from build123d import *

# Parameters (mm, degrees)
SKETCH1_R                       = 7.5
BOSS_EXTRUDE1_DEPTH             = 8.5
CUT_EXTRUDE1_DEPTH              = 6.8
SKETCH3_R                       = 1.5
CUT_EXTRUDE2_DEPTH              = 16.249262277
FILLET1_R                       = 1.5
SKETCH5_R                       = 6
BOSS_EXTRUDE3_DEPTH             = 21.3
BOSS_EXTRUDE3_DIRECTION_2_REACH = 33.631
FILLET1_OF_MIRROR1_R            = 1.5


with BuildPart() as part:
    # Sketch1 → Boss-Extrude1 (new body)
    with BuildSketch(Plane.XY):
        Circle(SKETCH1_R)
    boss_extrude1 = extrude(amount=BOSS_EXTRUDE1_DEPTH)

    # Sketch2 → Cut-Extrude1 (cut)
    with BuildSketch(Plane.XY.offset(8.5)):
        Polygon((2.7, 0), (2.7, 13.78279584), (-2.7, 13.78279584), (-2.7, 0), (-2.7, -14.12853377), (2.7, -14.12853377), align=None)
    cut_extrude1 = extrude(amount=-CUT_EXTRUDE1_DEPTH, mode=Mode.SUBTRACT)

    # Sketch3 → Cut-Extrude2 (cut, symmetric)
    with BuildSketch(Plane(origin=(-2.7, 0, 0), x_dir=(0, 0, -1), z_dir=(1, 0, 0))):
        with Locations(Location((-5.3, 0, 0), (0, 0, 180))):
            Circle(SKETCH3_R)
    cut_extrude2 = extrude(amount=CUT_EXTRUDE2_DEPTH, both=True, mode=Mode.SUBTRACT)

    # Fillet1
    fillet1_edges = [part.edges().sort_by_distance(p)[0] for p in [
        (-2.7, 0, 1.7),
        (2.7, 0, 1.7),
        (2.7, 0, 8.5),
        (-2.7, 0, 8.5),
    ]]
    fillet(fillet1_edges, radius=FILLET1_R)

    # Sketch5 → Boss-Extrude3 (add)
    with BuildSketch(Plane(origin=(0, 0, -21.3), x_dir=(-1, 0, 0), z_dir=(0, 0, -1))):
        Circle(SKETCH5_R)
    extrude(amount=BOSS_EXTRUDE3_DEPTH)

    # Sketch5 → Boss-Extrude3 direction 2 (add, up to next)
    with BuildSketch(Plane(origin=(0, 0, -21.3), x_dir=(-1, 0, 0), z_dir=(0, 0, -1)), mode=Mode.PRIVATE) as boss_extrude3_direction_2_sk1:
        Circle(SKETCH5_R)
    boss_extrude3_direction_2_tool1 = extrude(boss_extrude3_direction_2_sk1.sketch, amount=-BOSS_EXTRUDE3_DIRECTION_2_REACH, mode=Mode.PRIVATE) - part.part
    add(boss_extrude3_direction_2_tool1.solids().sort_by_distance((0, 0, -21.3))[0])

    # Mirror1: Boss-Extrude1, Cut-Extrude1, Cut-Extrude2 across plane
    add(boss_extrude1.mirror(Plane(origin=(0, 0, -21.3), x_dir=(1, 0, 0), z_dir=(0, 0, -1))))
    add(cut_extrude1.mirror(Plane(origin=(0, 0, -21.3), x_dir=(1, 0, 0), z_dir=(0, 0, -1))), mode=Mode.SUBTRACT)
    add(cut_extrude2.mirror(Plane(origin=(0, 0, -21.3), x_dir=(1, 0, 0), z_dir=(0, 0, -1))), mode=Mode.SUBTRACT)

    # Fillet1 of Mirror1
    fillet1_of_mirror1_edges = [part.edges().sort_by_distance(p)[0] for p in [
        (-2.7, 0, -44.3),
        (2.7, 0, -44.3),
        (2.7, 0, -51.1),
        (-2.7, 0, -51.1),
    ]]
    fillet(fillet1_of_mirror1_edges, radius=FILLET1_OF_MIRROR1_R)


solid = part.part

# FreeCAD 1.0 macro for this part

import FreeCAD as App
import Part
import Sketcher

V = App.Vector


def edges_at(feature, points):
    """Names of the edges that pass closest to the given points."""
    edges = feature.Shape.Edges
    near = lambda p: min(range(len(edges)), key=lambda i: edges[i].distToShape(Part.Vertex(*p))[0])
    return sorted({f"Edge{near(p) + 1}" for p in points})

doc = App.newDocument("Part")
params = doc.addObject("Spreadsheet::Sheet", "Params")
for row, (alias, value) in enumerate([
    ("sketch1_diameter", "15 mm"),
    ("pad1_length", "8.5 mm"),
    ("sketch2_width", "5.4 mm"),
    ("pocket1_length", "6.8 mm"),
    ("sketch3_diameter", "3 mm"),
    ("pocket2_length", "32.498525 mm"),
    ("fillet_radius", "1.5 mm"),
    ("sketch4_diameter", "12 mm"),
    ("pad2_length", "21.3 mm"),
    ("sketch5_diameter", "12 mm"),
    ("fillet2_radius", "1.5 mm"),
], start=1):
    params.set(f"A{row}", alias)
    params.set(f"B{row}", "=" + value)
    params.setAlias(f"B{row}", alias)

body = doc.addObject("PartDesign::Body", "Body")
body.AllowCompound = True

# Sketch on XY plane
sketch1 = body.newObject("Sketcher::SketchObject", "Sketch")
sketch1.AttachmentSupport = (doc.getObject("XY_Plane"), [""])
sketch1.MapMode = "FlatFace"
sketch1.addGeometry(Part.Circle(V(0, 0, 0), V(0, 0, 1), 8), False)
sketch1.addConstraint([
    Sketcher.Constraint("Coincident", 0, 3, -1, 1),
    Sketcher.Constraint("Diameter", 0, 15.0),
])
sketch1.setExpression("Constraints[1]", "Params.sketch1_diameter")
pad1 = body.newObject("PartDesign::Pad", "Pad")
pad1.Profile = sketch1
pad1.setExpression("Length", "Params.pad1_length")

# Sketch on XY plane
sketch2 = body.newObject("Sketcher::SketchObject", "Sketch001")
sketch2.AttachmentSupport = (doc.getObject("XY_Plane"), [""])
sketch2.MapMode = "FlatFace"
sketch2.AttachmentOffset = App.Placement(V(0, 0, 8.5), App.Rotation())
sketch2.addGeometry([
    Part.LineSegment(V(3, 14, 0), V(-3, 14, 0)),
    Part.LineSegment(V(-3, 14, 0), V(-3, -14, 0)),
    Part.LineSegment(V(-3, -14, 0), V(3, -14, 0)),
    Part.LineSegment(V(3, -14, 0), V(3, 14, 0)),
], False)
sketch2.addConstraint([
    Sketcher.Constraint("Coincident", 0, 2, 1, 1),
    Sketcher.Constraint("Coincident", 1, 2, 2, 1),
    Sketcher.Constraint("Coincident", 2, 2, 3, 1),
    Sketcher.Constraint("Coincident", 3, 2, 0, 1),
    Sketcher.Constraint("Horizontal", 0),
    Sketcher.Constraint("Vertical", 1),
    Sketcher.Constraint("Horizontal", 2),
    Sketcher.Constraint("Vertical", 3),
    Sketcher.Constraint("DistanceX", 0, 2, 0, 1, 5.4),
    Sketcher.Constraint("DistanceX", 0, 2, -1, 1, 2.7),
    Sketcher.Constraint("DistanceY", 1, 2, 1, 1, 27.91133),
    Sketcher.Constraint("DistanceY", -1, 1, 0, 2, 13.782796),
])
sketch2.setExpression("Constraints[8]", "Params.sketch2_width")
pocket1 = body.newObject("PartDesign::Pocket", "Pocket")
pocket1.Profile = sketch2
pocket1.setExpression("Length", "Params.pocket1_length")

# Sketch on YZ plane
sketch3 = body.newObject("Sketcher::SketchObject", "Sketch002")
sketch3.AttachmentSupport = (doc.getObject("YZ_Plane"), [""])
sketch3.MapMode = "FlatFace"
sketch3.AttachmentOffset = App.Placement(V(0, 0, -2.7), App.Rotation())
sketch3.addGeometry(Part.Circle(V(0, 5.3, 0), V(0, 0, 1), 1.5), False)
sketch3.addConstraint([
    Sketcher.Constraint("PointOnObject", 0, 3, -2),
    Sketcher.Constraint("Diameter", 0, 3.0),
    Sketcher.Constraint("DistanceY", -1, 1, 0, 3, 5.3),
])
sketch3.setExpression("Constraints[1]", "Params.sketch3_diameter")
pocket2 = body.newObject("PartDesign::Pocket", "Pocket001")
pocket2.Profile = sketch3
pocket2.setExpression("Length", "Params.pocket2_length")
pocket2.Midplane = True
doc.recompute()

fillet = body.newObject("PartDesign::Fillet", "Fillet")
fillet.Base = (pocket2, edges_at(pocket2, [
    (-2.7, 0, 1.7),
    (2.7, 0, 1.7),
    (2.7, 0, 8.5),
    (-2.7, 0, 8.5),
]))
fillet.setExpression("Radius", "Params.fillet_radius")

# Sketch on XY plane
sketch4 = body.newObject("Sketcher::SketchObject", "Sketch003")
sketch4.AttachmentSupport = (doc.getObject("XY_Plane"), [""])
sketch4.MapMode = "FlatFace"
sketch4.AttachmentOffset = App.Placement(V(0, 0, -21.3), App.Rotation())
sketch4.addGeometry(Part.Circle(V(0, 0, 0), V(0, 0, 1), 6), False)
sketch4.addConstraint([
    Sketcher.Constraint("Coincident", 0, 3, -1, 1),
    Sketcher.Constraint("Diameter", 0, 12.0),
])
sketch4.setExpression("Constraints[1]", "Params.sketch4_diameter")
pad2 = body.newObject("PartDesign::Pad", "Pad001")
pad2.Profile = sketch4
pad2.setExpression("Length", "Params.pad2_length")
pad2.Reversed = True

# Sketch on XY plane
sketch5 = body.newObject("Sketcher::SketchObject", "Sketch004")
sketch5.AttachmentSupport = (doc.getObject("XY_Plane"), [""])
sketch5.MapMode = "FlatFace"
sketch5.AttachmentOffset = App.Placement(V(0, 0, -21.3), App.Rotation())
sketch5.addGeometry(Part.Circle(V(0, 0, 0), V(0, 0, 1), 6), False)
sketch5.addConstraint([
    Sketcher.Constraint("Coincident", 0, 3, -1, 1),
    Sketcher.Constraint("Diameter", 0, 12.0),
])
sketch5.setExpression("Constraints[1]", "Params.sketch5_diameter")
pad3 = body.newObject("PartDesign::Pad", "Pad002")
pad3.Profile = sketch5
pad3.Type = "UpToFirst"
doc.recompute()

datumplane = body.newObject("PartDesign::Plane", "DatumPlane")
datumplane.AttachmentSupport = (doc.getObject("XY_Plane"), [""])
datumplane.MapMode = "FlatFace"
datumplane.AttachmentOffset = App.Placement(V(0, 0, -21.3), App.Rotation())
mirrored = body.newObject("PartDesign::Mirrored", "Mirrored")
mirrored.Originals = [pad1, pocket1, pocket2]
mirrored.MirrorPlane = (datumplane, [""])
body.Tip = mirrored
doc.recompute()

fillet2 = body.newObject("PartDesign::Fillet", "Fillet001")
fillet2.Base = (mirrored, edges_at(mirrored, [
    (-2.7, 0, -44.3),
    (2.7, 0, -44.3),
    (2.7, 0, -51.1),
    (-2.7, 0, -51.1),
]))
fillet2.setExpression("Radius", "Params.fillet2_radius")

doc.recompute()
